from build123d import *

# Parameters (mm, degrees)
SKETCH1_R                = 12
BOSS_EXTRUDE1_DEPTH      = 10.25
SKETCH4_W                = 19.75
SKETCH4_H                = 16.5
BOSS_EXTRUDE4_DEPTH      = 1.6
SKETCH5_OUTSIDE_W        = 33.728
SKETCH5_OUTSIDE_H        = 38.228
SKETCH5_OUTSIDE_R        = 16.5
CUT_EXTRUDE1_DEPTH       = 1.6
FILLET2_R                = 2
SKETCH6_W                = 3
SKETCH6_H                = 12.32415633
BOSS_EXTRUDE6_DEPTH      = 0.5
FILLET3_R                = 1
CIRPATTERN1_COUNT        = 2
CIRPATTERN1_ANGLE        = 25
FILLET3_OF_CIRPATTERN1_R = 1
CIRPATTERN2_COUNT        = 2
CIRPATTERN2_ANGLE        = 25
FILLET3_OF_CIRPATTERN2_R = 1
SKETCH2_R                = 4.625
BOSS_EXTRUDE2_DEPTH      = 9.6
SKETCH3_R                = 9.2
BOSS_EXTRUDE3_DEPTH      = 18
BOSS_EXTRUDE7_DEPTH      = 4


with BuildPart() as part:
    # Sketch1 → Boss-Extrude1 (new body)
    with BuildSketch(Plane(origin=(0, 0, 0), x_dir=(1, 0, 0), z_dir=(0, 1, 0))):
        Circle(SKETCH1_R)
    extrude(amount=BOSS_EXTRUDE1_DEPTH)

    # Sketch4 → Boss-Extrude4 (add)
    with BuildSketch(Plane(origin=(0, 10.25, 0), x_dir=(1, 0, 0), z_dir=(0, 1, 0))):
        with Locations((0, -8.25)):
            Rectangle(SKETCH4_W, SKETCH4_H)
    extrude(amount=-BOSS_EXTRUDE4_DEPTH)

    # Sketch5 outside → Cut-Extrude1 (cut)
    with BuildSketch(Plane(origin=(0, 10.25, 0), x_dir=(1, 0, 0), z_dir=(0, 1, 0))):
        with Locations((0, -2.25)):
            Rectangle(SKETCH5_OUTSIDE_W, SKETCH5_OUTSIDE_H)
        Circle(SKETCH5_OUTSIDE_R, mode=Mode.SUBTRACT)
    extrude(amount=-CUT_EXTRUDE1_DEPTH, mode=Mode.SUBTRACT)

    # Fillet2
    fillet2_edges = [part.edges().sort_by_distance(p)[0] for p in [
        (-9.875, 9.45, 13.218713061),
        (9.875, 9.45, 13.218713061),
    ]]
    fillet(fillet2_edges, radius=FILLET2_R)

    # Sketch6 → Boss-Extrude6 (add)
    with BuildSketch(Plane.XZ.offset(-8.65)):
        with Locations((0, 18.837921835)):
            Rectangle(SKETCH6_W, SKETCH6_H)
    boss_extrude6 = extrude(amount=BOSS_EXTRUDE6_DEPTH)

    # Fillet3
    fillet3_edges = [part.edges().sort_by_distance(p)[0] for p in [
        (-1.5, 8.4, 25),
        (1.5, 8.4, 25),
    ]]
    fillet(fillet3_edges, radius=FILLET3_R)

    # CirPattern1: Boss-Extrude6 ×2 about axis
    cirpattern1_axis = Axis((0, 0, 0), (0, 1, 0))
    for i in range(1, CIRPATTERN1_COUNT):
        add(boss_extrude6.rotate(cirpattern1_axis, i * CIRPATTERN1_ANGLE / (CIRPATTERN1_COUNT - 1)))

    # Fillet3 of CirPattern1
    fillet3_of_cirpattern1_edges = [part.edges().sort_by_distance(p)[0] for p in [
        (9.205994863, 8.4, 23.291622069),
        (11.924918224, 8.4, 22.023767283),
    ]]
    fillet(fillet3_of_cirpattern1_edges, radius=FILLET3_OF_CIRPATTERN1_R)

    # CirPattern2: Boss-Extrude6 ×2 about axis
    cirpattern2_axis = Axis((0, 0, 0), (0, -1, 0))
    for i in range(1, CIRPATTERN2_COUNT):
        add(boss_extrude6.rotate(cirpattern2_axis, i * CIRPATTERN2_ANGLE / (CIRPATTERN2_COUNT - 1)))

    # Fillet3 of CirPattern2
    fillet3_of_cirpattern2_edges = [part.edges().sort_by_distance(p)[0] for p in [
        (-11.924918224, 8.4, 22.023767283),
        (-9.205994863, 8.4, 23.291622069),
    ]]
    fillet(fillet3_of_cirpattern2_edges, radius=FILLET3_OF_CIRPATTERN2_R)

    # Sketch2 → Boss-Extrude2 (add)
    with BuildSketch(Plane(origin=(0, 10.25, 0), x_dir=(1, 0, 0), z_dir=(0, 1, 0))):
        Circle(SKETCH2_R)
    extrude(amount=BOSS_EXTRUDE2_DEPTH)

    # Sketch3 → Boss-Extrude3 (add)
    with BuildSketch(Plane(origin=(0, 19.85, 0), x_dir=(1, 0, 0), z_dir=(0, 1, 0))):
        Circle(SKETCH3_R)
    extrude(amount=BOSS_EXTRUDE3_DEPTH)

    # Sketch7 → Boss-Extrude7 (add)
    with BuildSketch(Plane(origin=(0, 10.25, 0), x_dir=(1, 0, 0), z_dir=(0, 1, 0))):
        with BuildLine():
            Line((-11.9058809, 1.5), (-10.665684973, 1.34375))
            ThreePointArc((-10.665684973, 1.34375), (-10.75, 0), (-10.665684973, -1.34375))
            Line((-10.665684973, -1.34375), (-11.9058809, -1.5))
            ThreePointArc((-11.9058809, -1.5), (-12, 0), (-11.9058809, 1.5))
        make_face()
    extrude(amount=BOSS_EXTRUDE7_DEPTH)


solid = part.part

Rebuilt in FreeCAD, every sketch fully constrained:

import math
import FreeCAD as App
import Part
import Sketcher
from FreeCAD import Vector
Q = App.Units.Quantity


def edges_at(feature, points):
    """Names of the edges that pass closest to the given points."""
    edges = feature.Shape.Edges
    near = lambda p: min(range(len(edges)), key=lambda i: edges[i].distToShape(Part.Vertex(*p))[0])
    return sorted({f"Edge{near(p) + 1}" for p in points})


def add_polygon(sketch, points):
    """Adds a closed chain of lines whose ends are joined by coincident constraints."""
    first, n = sketch.GeometryCount, len(points)
    for a, b in zip(points, points[1:] + points[:1]):
        sketch.addGeometry(Part.LineSegment(App.Vector(*a, 0), App.Vector(*b, 0)), False)
    for i in range(n):
        sketch.addConstraint(Sketcher.Constraint("Coincident", first + i, 2, first + (i + 1) % n, 1))

doc = App.newDocument("Part")
body = doc.addObject("PartDesign::Body", "Body")

# Sketch on XZ plane
sketch1 = body.newObject("Sketcher::SketchObject", "Sketch")
sketch1.AttachmentSupport = (doc.getObject("XZ_Plane"), [""])
sketch1.MapMode = "FlatFace"
sketch1.addGeometry(Part.Circle(Vector(0, 0, 0), Vector(0, 0, 1), 12), False)
sketch1.addConstraint([
    Sketcher.Constraint("Coincident", 0, 3, -1, 1),
    Sketcher.Constraint("Diameter", 0, Q("24 mm")),
])
pad1 = body.newObject("PartDesign::Pad", "Pad")
pad1.Profile = sketch1
pad1.Length = 10.25
pad1.Reversed = True

# Sketch on XZ plane
sketch2 = body.newObject("Sketcher::SketchObject", "Sketch001")
sketch2.AttachmentSupport = (doc.getObject("XZ_Plane"), [""])
sketch2.MapMode = "FlatFace"
sketch2.AttachmentOffset = App.Placement(Vector(0, 0, -10.25), App.Rotation())
add_polygon(sketch2, [(-9.875, 0), (-9.875, 16.5), (9.875, 16.5), (9.875, 0)])  # lines 0-3
sketch2.addConstraint([
    Sketcher.Constraint("Vertical", 0),
    Sketcher.Constraint("Horizontal", 1),
    Sketcher.Constraint("Vertical", 2),
    Sketcher.Constraint("Horizontal", 3),
    Sketcher.Constraint("Symmetric", 2, 2, 3, 2, -1, 1),
    Sketcher.Constraint("DistanceY", 0, 1, 0, 2, Q("16.5 mm")),
    Sketcher.Constraint("DistanceX", 1, 1, 1, 2, Q("19.75 mm")),
])
pad2 = body.newObject("PartDesign::Pad", "Pad001")
pad2.Profile = sketch2
pad2.Length = 1.6

# Sketch on XZ plane
sketch3 = body.newObject("Sketcher::SketchObject", "Sketch002")
sketch3.AttachmentSupport = (doc.getObject("XZ_Plane"), [""])
sketch3.MapMode = "FlatFace"
sketch3.AttachmentOffset = App.Placement(Vector(0, 0, -10.25), App.Rotation())
add_polygon(sketch3, [(-16.864, -16.864), (-16.864, 21.364), (16.864, 21.364), (16.864, -16.864)])  # lines 0-3
sketch3.addGeometry(Part.Circle(Vector(0, 0, 0), Vector(0, 0, 1), 16.5), False)  # 4
sketch3.addConstraint([
    Sketcher.Constraint("Vertical", 0),
    Sketcher.Constraint("Horizontal", 1),
    Sketcher.Constraint("Vertical", 2),
    Sketcher.Constraint("Horizontal", 3),
    Sketcher.Constraint("Coincident", 4, 3, -1, 1),
    Sketcher.Constraint("Diameter", 4, Q("33 mm")),
    Sketcher.Constraint("DistanceX", 1, 1, 1, 2, Q("33.728 mm")),
    Sketcher.Constraint("DistanceY", 0, 1, 0, 2, Q("38.228 mm")),
    Sketcher.Constraint("DistanceX", 0, 2, -1, 1, Q("16.864 mm")),
    Sketcher.Constraint("DistanceY", -1, 1, 0, 2, Q("21.364 mm")),
])
pocket1 = body.newObject("PartDesign::Pocket", "Pocket")
pocket1.Profile = sketch3
pocket1.Length = 1.6
pocket1.Reversed = True
doc.recompute()

fillet = body.newObject("PartDesign::Fillet", "Fillet")
fillet.Base = (pocket1, edges_at(pocket1, [(-9.875, 9.45, 13.219), (9.875, 9.45, 13.219)]))
fillet.Radius = 2

# Sketch on XZ plane
sketch4 = body.newObject("Sketcher::SketchObject", "Sketch003")
sketch4.AttachmentSupport = (doc.getObject("XZ_Plane"), [""])
sketch4.MapMode = "FlatFace"
sketch4.AttachmentOffset = App.Placement(Vector(0, 0, -8.65), App.Rotation())
add_polygon(sketch4, [(-1.5, 25), (-1.5, 12.675844), (1.5, 12.675844), (1.5, 25)])  # lines 0-3
sketch4.addConstraint([
    Sketcher.Constraint("Vertical", 0),
    Sketcher.Constraint("Horizontal", 1),
    Sketcher.Constraint("Vertical", 2),
    Sketcher.Constraint("Horizontal", 3),
    Sketcher.Constraint("DistanceX", 1, 1, 1, 2, Q("3 mm")),
    Sketcher.Constraint("DistanceY", -1, 1, 2, 2, Q("25 mm")),
    Sketcher.Constraint("DistanceX", 0, 2, -1, 1, Q("1.5 mm")),
    Sketcher.Constraint("DistanceY", 0, 2, 0, 1, Q("12.324156 mm")),
])
pad3 = body.newObject("PartDesign::Pad", "Pad002")
pad3.Profile = sketch4
pad3.Length = 0.5
doc.recompute()

fillet2 = body.newObject("PartDesign::Fillet", "Fillet001")
fillet2.Base = (pad3, edges_at(pad3, [(-1.5, 8.4, 25), (1.5, 8.4, 25)]))
fillet2.Radius = 1
doc.recompute()

polarpattern = body.newObject("PartDesign::PolarPattern", "PolarPattern")
polarpattern.Originals = [pad3]
polarpattern.Axis = (doc.getObject("Y_Axis"), [""])
polarpattern.Angle = 25
polarpattern.Occurrences = 2
body.Tip = polarpattern
doc.recompute()

fillet3 = body.newObject("PartDesign::Fillet", "Fillet002")
fillet3.Base = (polarpattern, edges_at(polarpattern, [(9.206, 8.4, 23.292), (11.925, 8.4, 22.024)]))
fillet3.Radius = 1
doc.recompute()

polarpattern2 = body.newObject("PartDesign::PolarPattern", "PolarPattern001")
polarpattern2.Originals = [pad3]
polarpattern2.Axis = (doc.getObject("Y_Axis"), [""])
polarpattern2.Angle = 25
polarpattern2.Occurrences = 2
polarpattern2.Reversed = True
body.Tip = polarpattern2
doc.recompute()

fillet4 = body.newObject("PartDesign::Fillet", "Fillet003")
fillet4.Base = (polarpattern2, edges_at(polarpattern2, [(-11.925, 8.4, 22.024), (-9.206, 8.4, 23.292)]))
fillet4.Radius = 1

# Sketch on XZ plane
sketch5 = body.newObject("Sketcher::SketchObject", "Sketch004")
sketch5.AttachmentSupport = (doc.getObject("XZ_Plane"), [""])
sketch5.MapMode = "FlatFace"
sketch5.AttachmentOffset = App.Placement(Vector(0, 0, -10.25), App.Rotation())
sketch5.addGeometry(Part.Circle(Vector(0, 0, 0), Vector(0, 0, 1), 4.625), False)
sketch5.addConstraint([
    Sketcher.Constraint("Coincident", 0, 3, -1, 1),
    Sketcher.Constraint("Diameter", 0, Q("9.25 mm")),
])
pad4 = body.newObject("PartDesign::Pad", "Pad003")
pad4.Profile = sketch5
pad4.Length = 9.6
pad4.Reversed = True

# Sketch on XZ plane
sketch6 = body.newObject("Sketcher::SketchObject", "Sketch005")
sketch6.AttachmentSupport = (doc.getObject("XZ_Plane"), [""])
sketch6.MapMode = "FlatFace"
sketch6.AttachmentOffset = App.Placement(Vector(0, 0, -19.85), App.Rotation())
sketch6.addGeometry(Part.Circle(Vector(0, 0, 0), Vector(0, 0, 1), 9.2), False)
sketch6.addConstraint([
    Sketcher.Constraint("Coincident", 0, 3, -1, 1),
    Sketcher.Constraint("Diameter", 0, Q("18.4 mm")),
])
pad5 = body.newObject("PartDesign::Pad", "Pad004")
pad5.Profile = sketch6
pad5.Length = 18
pad5.Reversed = True

# Sketch on XZ plane
sketch7 = body.newObject("Sketcher::SketchObject", "Sketch006")
sketch7.AttachmentSupport = (doc.getObject("XZ_Plane"), [""])
sketch7.MapMode = "FlatFace"
sketch7.AttachmentOffset = App.Placement(Vector(0, 0, -10.25), App.Rotation())
sketch7.addGeometry([
    Part.LineSegment(Vector(-10.665685, -1.34375, 0), Vector(-11.905881, -1.5, 0)),
    Part.ArcOfCircle(Part.Circle(Vector(0, 0, 0), Vector(0, 0, 1), 12), math.radians(172.819244), math.radians(187.180756)),
    Part.LineSegment(Vector(-11.905881, 1.5, 0), Vector(-10.665685, 1.34375, 0)),
    Part.ArcOfCircle(Part.Circle(Vector(0, 0, 0), Vector(0, 0, 1), 10.75), math.radians(172.819244), math.radians(187.180756)),
], False)
sketch7.addConstraint([
    Sketcher.Constraint("Coincident", 0, 2, 1, 2),
    Sketcher.Constraint("Coincident", 1, 1, 2, 1),
    Sketcher.Constraint("Coincident", 2, 2, 3, 1),
    Sketcher.Constraint("Coincident", 3, 2, 0, 1),
    Sketcher.Constraint("Coincident", 1, 3, -1, 1),
    Sketcher.Constraint("Coincident", 3, 3, -1, 1),
    Sketcher.Constraint("Vertical", 0, 2, 1, 1),
    Sketcher.Constraint("Vertical", 2, 2, 3, 2),
    Sketcher.Constraint("Radius", 1, Q("12 mm")),
    Sketcher.Constraint("Radius", 3, Q("10.75 mm")),
    Sketcher.Constraint("DistanceY", 0, 2, 1, 1, Q("3 mm")),
    Sketcher.Constraint("DistanceY", 3, 2, 2, 2, Q("2.6875 mm")),
])
pad6 = body.newObject("PartDesign::Pad", "Pad005")
pad6.Profile = sketch7
pad6.Length = 4
pad6.Reversed = True

doc.recompute()
